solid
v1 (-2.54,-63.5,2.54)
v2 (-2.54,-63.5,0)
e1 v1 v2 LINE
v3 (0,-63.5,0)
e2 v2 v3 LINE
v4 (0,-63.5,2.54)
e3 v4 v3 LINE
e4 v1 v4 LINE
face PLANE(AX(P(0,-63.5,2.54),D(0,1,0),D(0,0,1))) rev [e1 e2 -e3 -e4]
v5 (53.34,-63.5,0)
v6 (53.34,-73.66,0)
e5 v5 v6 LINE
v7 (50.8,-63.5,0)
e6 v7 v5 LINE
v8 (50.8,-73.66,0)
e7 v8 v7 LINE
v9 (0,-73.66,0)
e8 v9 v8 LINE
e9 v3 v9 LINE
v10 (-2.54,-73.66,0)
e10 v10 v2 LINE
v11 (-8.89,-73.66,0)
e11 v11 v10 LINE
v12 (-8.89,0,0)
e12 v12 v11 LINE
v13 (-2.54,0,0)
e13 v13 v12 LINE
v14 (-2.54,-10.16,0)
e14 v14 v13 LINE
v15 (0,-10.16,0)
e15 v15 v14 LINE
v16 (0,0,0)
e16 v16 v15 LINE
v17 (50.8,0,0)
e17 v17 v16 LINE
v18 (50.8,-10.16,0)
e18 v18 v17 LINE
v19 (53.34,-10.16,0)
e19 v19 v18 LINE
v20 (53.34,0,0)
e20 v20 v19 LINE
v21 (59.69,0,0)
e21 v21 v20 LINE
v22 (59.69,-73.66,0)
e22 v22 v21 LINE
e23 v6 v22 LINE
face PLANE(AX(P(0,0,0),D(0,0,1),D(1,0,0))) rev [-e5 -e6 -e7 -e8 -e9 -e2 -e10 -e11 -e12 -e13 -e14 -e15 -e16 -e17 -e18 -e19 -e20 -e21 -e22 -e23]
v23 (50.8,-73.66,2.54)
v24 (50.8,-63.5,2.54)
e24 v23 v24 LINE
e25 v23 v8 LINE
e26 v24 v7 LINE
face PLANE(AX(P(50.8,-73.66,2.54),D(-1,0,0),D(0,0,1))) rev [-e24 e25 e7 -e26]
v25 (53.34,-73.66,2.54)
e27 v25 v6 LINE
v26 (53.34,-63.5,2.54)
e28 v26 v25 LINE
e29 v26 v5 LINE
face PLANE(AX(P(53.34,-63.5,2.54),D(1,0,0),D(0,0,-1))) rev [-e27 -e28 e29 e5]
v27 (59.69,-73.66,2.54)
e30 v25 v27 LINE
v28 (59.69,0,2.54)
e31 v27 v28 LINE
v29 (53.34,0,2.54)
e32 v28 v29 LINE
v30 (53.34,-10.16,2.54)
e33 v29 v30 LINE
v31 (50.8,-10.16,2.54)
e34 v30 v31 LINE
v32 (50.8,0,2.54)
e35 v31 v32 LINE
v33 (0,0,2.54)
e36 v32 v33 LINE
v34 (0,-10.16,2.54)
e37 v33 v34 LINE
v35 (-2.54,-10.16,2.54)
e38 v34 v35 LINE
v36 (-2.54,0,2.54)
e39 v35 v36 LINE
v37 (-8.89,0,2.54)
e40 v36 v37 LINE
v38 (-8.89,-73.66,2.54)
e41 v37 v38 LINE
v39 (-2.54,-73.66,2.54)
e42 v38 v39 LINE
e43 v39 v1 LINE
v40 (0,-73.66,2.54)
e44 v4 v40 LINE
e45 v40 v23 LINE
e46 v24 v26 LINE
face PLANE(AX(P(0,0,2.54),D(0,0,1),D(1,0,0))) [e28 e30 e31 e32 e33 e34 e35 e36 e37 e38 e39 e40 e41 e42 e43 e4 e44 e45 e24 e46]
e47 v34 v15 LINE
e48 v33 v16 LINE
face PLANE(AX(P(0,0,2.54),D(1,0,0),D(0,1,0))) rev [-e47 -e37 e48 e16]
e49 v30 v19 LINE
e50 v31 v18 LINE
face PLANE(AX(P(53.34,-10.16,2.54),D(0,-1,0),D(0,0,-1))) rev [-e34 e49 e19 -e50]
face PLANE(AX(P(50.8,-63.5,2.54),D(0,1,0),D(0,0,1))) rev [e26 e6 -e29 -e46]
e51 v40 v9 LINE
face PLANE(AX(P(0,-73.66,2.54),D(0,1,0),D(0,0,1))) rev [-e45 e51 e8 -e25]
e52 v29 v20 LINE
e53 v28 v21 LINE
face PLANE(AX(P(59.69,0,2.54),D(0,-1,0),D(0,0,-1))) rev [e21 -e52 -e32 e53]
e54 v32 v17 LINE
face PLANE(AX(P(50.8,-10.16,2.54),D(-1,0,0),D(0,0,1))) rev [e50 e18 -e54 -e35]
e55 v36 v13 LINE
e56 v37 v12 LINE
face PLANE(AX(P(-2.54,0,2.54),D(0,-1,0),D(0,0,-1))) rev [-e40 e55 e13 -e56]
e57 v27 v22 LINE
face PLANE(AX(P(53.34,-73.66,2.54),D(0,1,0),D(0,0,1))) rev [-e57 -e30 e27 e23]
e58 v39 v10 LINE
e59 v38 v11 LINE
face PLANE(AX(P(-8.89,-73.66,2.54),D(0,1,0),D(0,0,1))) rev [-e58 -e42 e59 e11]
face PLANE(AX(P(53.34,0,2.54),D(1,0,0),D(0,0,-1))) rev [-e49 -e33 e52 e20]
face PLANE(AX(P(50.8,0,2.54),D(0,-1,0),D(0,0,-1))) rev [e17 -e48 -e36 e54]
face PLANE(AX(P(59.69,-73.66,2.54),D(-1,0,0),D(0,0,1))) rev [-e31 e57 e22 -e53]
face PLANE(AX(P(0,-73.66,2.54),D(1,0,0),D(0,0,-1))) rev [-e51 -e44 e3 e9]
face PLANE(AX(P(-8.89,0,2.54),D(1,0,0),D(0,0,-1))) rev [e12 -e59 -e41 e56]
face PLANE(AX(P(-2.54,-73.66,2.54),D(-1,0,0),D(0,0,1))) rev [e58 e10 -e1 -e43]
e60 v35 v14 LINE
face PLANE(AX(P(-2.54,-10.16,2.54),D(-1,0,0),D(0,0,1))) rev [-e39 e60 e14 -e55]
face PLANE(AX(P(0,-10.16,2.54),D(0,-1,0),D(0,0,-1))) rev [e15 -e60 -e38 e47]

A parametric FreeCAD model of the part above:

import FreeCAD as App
import Part
import Sketcher
Q = App.Units.Quantity


def add_polygon(sketch, points):
    """Adds a closed chain of lines whose ends are joined by coincident constraints."""
    first, n = sketch.GeometryCount, len(points)
    for a, b in zip(points, points[1:] + points[:1]):
        sketch.addGeometry(Part.LineSegment(App.Vector(*a, 0), App.Vector(*b, 0)), False)
    for i in range(n):
        sketch.addConstraint(Sketcher.Constraint("Coincident", first + i, 2, first + (i + 1) % n, 1))

doc = App.newDocument("Part")
body = doc.addObject("PartDesign::Body", "Body")

sketch1 = body.newObject("Sketcher::SketchObject", "Sketch")
sketch1.AttachmentSupport = (doc.getObject("XY_Plane"), [""])
sketch1.MapMode = "FlatFace"
add_polygon(sketch1, [(0, 0), (0, -10.16), (-2.54, -10.16), (-2.54, 0), (-8.89, 0), (-8.89, -73.66), (-2.54, -73.66), (-2.54, -63.5), (0, -63.5), (0, -73.66), (50.8, -73.66), (50.8, -63.5), (53.34, -63.5), (53.34, -73.66), (59.69, -73.66), (59.69, 0), (53.34, 0), (53.34, -10.16), (50.8, -10.16), (50.8, 0)])
sketch1.addConstraint(Sketcher.Constraint("Vertical", 0))
sketch1.addConstraint(Sketcher.Constraint("Horizontal", 1))
sketch1.addConstraint(Sketcher.Constraint("Vertical", 2))
sketch1.addConstraint(Sketcher.Constraint("Horizontal", 3))
sketch1.addConstraint(Sketcher.Constraint("Vertical", 4))
sketch1.addConstraint(Sketcher.Constraint("Horizontal", 5))
sketch1.addConstraint(Sketcher.Constraint("Vertical", 6))
sketch1.addConstraint(Sketcher.Constraint("Horizontal", 7))
sketch1.addConstraint(Sketcher.Constraint("Vertical", 8))
sketch1.addConstraint(Sketcher.Constraint("Horizontal", 9))
sketch1.addConstraint(Sketcher.Constraint("Vertical", 10))
sketch1.addConstraint(Sketcher.Constraint("Horizontal", 11))
sketch1.addConstraint(Sketcher.Constraint("Vertical", 12))
sketch1.addConstraint(Sketcher.Constraint("Horizontal", 13))
sketch1.addConstraint(Sketcher.Constraint("Vertical", 14))
sketch1.addConstraint(Sketcher.Constraint("Horizontal", 15))
sketch1.addConstraint(Sketcher.Constraint("Vertical", 16))
sketch1.addConstraint(Sketcher.Constraint("Horizontal", 17))
sketch1.addConstraint(Sketcher.Constraint("Vertical", 18))
sketch1.addConstraint(Sketcher.Constraint("Horizontal", 19))
sketch1.addConstraint(Sketcher.Constraint("Coincident", 19, 2, -1, 1))
sketch1.addConstraint(Sketcher.Constraint("PointOnObject", 2, 2, -1))
sketch1.addConstraint(Sketcher.Constraint("PointOnObject", 7, 2, -2))
sketch1.addConstraint(Sketcher.Constraint("PointOnObject", 14, 2, -1))
sketch1.addConstraint(Sketcher.Constraint("Horizontal", 5, 2, 8, 2))
sketch1.addConstraint(Sketcher.Constraint("Horizontal", 7, 2, 10, 2))
sketch1.addConstraint(Sketcher.Constraint("Horizontal", 9, 2, 12, 2))
sketch1.addConstraint(Sketcher.Constraint("Horizontal", 1, 2, 16, 2))
sketch1.addConstraint(Sketcher.Constraint("Vertical", 2, 2, 5, 2))
sketch1.addConstraint(Sketcher.Constraint("Vertical", 12, 2, 15, 2))
sketch1.addConstraint(Sketcher.Constraint("Vertical", 10, 2, 17, 2))
sketch1.addConstraint(Sketcher.Constraint("Equal", 7, 11))
sketch1.addConstraint(Sketcher.Constraint("Equal", 5, 13))
sketch1.addConstraint(Sketcher.Constraint("Equal", 2, 6))
sketch1.addConstraint(Sketcher.Constraint("DistanceX", 9, 1, 9, 2, Q("2 in")))
sketch1.addConstraint(Sketcher.Constraint("DistanceX", 1, 2, 1, 1, Q("0.1 in")))
sketch1.addConstraint(Sketcher.Constraint("DistanceY", 0, 2, 0, 1, Q("0.4 in")))
sketch1.addConstraint(Sketcher.Constraint("DistanceY", 4, 2, 4, 1, Q("2.9 in")))
sketch1.addConstraint(Sketcher.Constraint("DistanceX", 3, 2, 3, 1, Q("0.25 in")))
pad1 = body.newObject("PartDesign::Pad", "Pad")
pad1.Profile = sketch1
pad1.Length = Q("0.1 in")

doc.recompute()
